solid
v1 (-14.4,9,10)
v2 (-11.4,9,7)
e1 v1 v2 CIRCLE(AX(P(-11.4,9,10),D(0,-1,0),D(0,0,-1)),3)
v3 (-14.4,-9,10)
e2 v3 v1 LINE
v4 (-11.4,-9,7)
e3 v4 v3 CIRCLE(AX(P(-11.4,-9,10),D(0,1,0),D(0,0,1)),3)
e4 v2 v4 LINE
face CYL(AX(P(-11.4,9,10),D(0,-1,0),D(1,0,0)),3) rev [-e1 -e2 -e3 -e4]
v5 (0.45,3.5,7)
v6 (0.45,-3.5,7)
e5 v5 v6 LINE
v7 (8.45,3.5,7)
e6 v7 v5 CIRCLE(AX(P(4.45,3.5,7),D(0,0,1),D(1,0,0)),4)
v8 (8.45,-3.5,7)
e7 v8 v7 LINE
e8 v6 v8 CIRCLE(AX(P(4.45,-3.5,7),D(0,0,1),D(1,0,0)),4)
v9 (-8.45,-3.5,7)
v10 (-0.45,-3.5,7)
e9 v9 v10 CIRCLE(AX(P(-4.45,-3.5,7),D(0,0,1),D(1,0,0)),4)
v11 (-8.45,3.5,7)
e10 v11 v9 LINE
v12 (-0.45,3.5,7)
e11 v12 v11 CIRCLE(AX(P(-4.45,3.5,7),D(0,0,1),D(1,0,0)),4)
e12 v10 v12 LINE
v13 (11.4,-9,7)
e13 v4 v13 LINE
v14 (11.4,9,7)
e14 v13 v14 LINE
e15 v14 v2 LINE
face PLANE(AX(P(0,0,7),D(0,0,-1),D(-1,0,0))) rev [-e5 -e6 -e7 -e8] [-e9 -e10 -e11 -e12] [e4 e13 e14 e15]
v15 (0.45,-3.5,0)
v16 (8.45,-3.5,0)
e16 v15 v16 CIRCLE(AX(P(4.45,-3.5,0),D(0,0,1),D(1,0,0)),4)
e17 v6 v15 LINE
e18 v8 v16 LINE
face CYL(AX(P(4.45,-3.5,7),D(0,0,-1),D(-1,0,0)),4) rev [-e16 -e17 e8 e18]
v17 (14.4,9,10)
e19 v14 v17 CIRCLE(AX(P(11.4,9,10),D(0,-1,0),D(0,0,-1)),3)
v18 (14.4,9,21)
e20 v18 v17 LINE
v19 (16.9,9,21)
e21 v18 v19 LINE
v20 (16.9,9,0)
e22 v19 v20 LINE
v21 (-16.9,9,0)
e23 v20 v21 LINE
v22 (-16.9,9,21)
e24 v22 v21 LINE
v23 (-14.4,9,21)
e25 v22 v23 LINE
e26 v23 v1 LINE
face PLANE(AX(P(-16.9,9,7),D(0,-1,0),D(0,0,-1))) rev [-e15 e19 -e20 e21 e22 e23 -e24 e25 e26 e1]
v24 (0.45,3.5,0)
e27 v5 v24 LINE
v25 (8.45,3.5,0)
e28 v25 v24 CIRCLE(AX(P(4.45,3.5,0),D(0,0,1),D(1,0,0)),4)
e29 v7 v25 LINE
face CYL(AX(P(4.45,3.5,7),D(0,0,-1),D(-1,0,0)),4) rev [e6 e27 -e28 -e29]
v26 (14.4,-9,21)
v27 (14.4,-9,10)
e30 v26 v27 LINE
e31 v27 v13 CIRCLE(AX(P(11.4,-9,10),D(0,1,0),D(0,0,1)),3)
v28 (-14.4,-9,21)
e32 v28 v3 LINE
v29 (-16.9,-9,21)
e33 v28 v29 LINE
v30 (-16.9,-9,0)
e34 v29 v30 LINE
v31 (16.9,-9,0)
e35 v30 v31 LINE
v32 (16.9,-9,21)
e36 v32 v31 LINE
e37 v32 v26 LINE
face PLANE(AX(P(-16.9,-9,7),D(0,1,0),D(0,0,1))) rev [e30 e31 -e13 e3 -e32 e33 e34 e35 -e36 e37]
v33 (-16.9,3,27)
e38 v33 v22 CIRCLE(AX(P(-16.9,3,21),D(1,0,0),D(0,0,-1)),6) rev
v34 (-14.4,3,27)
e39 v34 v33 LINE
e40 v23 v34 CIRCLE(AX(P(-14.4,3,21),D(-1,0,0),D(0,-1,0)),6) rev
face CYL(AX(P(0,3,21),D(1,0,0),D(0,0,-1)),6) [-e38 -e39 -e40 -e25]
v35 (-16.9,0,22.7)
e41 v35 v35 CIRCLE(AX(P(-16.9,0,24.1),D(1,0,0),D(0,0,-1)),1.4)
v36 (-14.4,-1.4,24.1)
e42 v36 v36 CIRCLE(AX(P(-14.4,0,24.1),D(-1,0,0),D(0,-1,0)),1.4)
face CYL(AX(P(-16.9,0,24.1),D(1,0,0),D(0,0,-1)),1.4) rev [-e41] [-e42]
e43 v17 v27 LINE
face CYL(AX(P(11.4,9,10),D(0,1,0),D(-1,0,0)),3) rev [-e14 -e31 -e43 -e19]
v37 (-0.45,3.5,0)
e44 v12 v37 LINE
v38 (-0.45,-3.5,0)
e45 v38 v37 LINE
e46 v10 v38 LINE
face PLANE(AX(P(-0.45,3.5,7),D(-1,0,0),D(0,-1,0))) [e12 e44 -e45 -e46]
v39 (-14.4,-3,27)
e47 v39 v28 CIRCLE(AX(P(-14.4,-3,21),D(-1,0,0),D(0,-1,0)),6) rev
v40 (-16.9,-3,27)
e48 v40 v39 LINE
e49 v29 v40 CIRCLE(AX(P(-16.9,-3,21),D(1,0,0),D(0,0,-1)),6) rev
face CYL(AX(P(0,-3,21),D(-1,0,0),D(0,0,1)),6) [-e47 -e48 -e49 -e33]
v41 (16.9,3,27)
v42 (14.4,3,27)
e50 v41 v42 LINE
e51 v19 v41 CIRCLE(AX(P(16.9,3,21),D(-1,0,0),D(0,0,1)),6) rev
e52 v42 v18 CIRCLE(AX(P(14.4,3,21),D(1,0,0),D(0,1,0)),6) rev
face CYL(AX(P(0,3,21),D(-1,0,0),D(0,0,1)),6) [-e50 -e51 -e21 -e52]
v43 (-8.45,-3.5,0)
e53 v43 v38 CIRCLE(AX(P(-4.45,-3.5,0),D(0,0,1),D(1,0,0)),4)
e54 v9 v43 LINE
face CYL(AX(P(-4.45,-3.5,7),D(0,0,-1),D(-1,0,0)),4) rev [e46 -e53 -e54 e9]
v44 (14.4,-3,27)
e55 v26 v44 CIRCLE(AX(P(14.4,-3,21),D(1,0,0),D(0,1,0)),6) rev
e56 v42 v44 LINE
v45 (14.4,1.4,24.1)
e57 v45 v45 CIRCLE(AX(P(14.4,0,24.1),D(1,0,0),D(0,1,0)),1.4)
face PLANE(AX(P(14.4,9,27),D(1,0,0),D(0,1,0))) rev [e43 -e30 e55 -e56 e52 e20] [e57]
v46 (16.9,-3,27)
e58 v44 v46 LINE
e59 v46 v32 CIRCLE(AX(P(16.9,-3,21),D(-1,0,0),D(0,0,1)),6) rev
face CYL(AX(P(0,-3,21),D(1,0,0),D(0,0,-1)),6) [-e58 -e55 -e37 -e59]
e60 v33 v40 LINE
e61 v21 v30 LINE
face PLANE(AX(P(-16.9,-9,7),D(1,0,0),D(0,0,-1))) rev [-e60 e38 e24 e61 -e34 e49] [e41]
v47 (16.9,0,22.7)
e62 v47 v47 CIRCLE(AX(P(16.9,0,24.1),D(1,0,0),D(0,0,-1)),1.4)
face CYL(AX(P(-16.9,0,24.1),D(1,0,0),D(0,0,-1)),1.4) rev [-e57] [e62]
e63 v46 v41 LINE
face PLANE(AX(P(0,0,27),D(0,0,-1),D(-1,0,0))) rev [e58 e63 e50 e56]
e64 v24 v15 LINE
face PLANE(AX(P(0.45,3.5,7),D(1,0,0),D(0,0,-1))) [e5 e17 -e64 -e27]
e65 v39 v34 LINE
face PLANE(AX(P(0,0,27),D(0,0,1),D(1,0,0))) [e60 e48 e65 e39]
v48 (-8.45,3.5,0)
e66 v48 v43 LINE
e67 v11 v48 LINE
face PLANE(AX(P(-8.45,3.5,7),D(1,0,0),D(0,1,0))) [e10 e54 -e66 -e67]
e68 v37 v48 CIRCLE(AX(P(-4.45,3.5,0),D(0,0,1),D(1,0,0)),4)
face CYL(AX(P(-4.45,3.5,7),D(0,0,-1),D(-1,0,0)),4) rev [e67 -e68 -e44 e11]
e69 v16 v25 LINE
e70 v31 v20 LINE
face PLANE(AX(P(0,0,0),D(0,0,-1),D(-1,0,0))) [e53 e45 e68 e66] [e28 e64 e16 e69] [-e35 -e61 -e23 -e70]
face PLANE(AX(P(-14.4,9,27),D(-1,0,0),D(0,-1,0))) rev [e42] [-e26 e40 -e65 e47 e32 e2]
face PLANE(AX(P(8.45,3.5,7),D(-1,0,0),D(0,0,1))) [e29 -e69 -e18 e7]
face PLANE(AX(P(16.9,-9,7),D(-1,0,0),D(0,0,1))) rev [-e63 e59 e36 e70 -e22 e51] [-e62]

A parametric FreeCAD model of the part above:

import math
import FreeCAD as App
import Part
import Sketcher
Q = App.Units.Quantity


def edges_at(feature, points):
    """Names of the edges that pass closest to the given points."""
    edges = feature.Shape.Edges
    near = lambda p: min(range(len(edges)), key=lambda i: edges[i].distToShape(Part.Vertex(*p))[0])
    return sorted({f"Edge{near(p) + 1}" for p in points})


def add_polygon(sketch, points):
    """Adds a closed chain of lines whose ends are joined by coincident constraints."""
    first, n = sketch.GeometryCount, len(points)
    for a, b in zip(points, points[1:] + points[:1]):
        sketch.addGeometry(Part.LineSegment(App.Vector(*a, 0), App.Vector(*b, 0)), False)
    for i in range(n):
        sketch.addConstraint(Sketcher.Constraint("Coincident", first + i, 2, first + (i + 1) % n, 1))

doc = App.newDocument("Part")
body = doc.addObject("PartDesign::Body", "Body")

# Sketch on XY plane
sketch1 = doc.addObject("Sketcher::SketchObject", "Sketch")
body.addObject(sketch1)
sketch1.AttachmentSupport = (doc.XY_Plane, [""])
sketch1.MapMode = "FlatFace"
add_polygon(sketch1, [(-16.9, 9), (-16.9, -9), (16.9, -9), (16.9, 9)])  # lines 0-3
sketch1.addGeometry(Part.ArcOfCircle(Part.Circle(App.Vector(4.5, 3.5, 0), App.Vector(0, 0, 1), 4), math.radians(0), math.radians(180)), False)  # 4
sketch1.addGeometry(Part.LineSegment(App.Vector(8.4, 3.5, 0), App.Vector(8.4, -3.5, 0)), False)  # 5
sketch1.addGeometry(Part.ArcOfCircle(Part.Circle(App.Vector(4.5, -3.5, 0), App.Vector(0, 0, 1), 4), math.radians(180), math.radians(360)), False)  # 6
sketch1.addGeometry(Part.LineSegment(App.Vector(0.5, -3.5, 0), App.Vector(0.5, 3.5, 0)), False)  # 7
sketch1.addGeometry(Part.ArcOfCircle(Part.Circle(App.Vector(-4.5, 3.5, 0), App.Vector(0, 0, 1), 4), math.radians(0), math.radians(180)), False)  # 8
sketch1.addGeometry(Part.LineSegment(App.Vector(-0.5, 3.5, 0), App.Vector(-0.5, -3.5, 0)), False)  # 9
sketch1.addGeometry(Part.ArcOfCircle(Part.Circle(App.Vector(-4.5, -3.5, 0), App.Vector(0, 0, 1), 4), math.radians(180), math.radians(360)), False)  # 10
sketch1.addGeometry(Part.LineSegment(App.Vector(-8.4, -3.5, 0), App.Vector(-8.4, 3.5, 0)), False)  # 11
sketch1.addConstraint([
    Sketcher.Constraint("Tangent", 4, 1, 5, 1),
    Sketcher.Constraint("Tangent", 5, 2, 6, 2),
    Sketcher.Constraint("Tangent", 6, 1, 7, 1),
    Sketcher.Constraint("Tangent", 7, 2, 4, 2),
    Sketcher.Constraint("Tangent", 8, 1, 9, 1),
    Sketcher.Constraint("Tangent", 9, 2, 10, 2),
    Sketcher.Constraint("Tangent", 10, 1, 11, 1),
    Sketcher.Constraint("Tangent", 11, 2, 8, 2),
    Sketcher.Constraint("Vertical", 0),
    Sketcher.Constraint("Horizontal", 1),
    Sketcher.Constraint("Vertical", 2),
    Sketcher.Constraint("Horizontal", 3),
    Sketcher.Constraint("Vertical", 5),
    Sketcher.Constraint("Vertical", 7),
    Sketcher.Constraint("Vertical", 9),
    Sketcher.Constraint("Vertical", 11),
    Sketcher.Constraint("Equal", 6, 8),
    Sketcher.Constraint("Symmetric", 6, 3, 8, 3, -1, 1),
    Sketcher.Constraint("Symmetric", 0, 2, 2, 2, -1, 1),
    Sketcher.Constraint("Horizontal", 4, 3, 8, 3),
    Sketcher.Constraint("Horizontal", 6, 3, 10, 3),
    Sketcher.Constraint("Radius", 4, Q("4 mm")),
    Sketcher.Constraint("DistanceY", 0, 2, 0, 1, Q("18 mm")),
    Sketcher.Constraint("DistanceY", 5, 2, 5, 1, Q("7 mm")),
    Sketcher.Constraint("DistanceX", 1, 1, 1, 2, Q("33.8 mm")),
    Sketcher.Constraint("DistanceX", 8, 3, 4, 3, Q("8.9 mm")),
])
pad1 = doc.addObject("PartDesign::Pad", "Pad")
body.addObject(pad1)
pad1.Profile = sketch1
pad1.Length = 7

# Sketch on XY plane
sketch2 = doc.addObject("Sketcher::SketchObject", "Sketch001")
body.addObject(sketch2)
sketch2.AttachmentSupport = (doc.XY_Plane, [""])
sketch2.MapMode = "FlatFace"
sketch2.AttachmentOffset = App.Placement(App.Vector(0, 0, 7), App.Rotation())
add_polygon(sketch2, [(-16.9, 9), (-16.9, -9), (-14.4, -9), (-14.4, 9)])  # lines 0-3
add_polygon(sketch2, [(14.4, 9), (14.4, -9), (16.9, -9), (16.9, 9)])  # lines 4-7
sketch2.addConstraint([
    Sketcher.Constraint("Vertical", 0),
    Sketcher.Constraint("Horizontal", 1),
    Sketcher.Constraint("Vertical", 2),
    Sketcher.Constraint("Horizontal", 3),
    Sketcher.Constraint("Vertical", 4),
    Sketcher.Constraint("Horizontal", 5),
    Sketcher.Constraint("Vertical", 6),
    Sketcher.Constraint("Horizontal", 7),
    Sketcher.Constraint("Symmetric", 2, 2, 4, 2, -1, 1),
    Sketcher.Constraint("Symmetric", 0, 2, 6, 2, -1, 1),
    Sketcher.Constraint("Horizontal", 1, 2, 4, 2),
    Sketcher.Constraint("DistanceY", 0, 2, 0, 1, Q("18 mm")),
    Sketcher.Constraint("DistanceX", 1, 1, 1, 2, Q("2.5 mm")),
    Sketcher.Constraint("DistanceX", 0, 2, -1, 1, Q("16.9 mm")),
])
pad2 = doc.addObject("PartDesign::Pad", "Pad001")
body.addObject(pad2)
pad2.Profile = sketch2
pad2.Length = 20

# Sketch on YZ plane
sketch3 = doc.addObject("Sketcher::SketchObject", "Sketch002")
body.addObject(sketch3)
sketch3.AttachmentSupport = (doc.YZ_Plane, [""])
sketch3.MapMode = "FlatFace"
sketch3.AttachmentOffset = App.Placement(App.Vector(0, 0, 16.9), App.Rotation())
sketch3.addGeometry(Part.Circle(App.Vector(0, 24.1, 0), App.Vector(0, 0, 1), 1.4), False)
sketch3.addConstraint([
    Sketcher.Constraint("PointOnObject", 0, 3, -2),
    Sketcher.Constraint("Diameter", 0, Q("2.8 mm")),
    Sketcher.Constraint("DistanceY", -1, 1, 0, 3, Q("24.1 mm")),
])
pocket1 = doc.addObject("PartDesign::Pocket", "Pocket")
body.addObject(pocket1)
pocket1.Profile = sketch3
pocket1.Type = "ThroughAll"
doc.recompute()

fillet = doc.addObject("PartDesign::Fillet", "Fillet")
body.addObject(fillet)
fillet.Base = (pocket1, edges_at(pocket1, [
    (15.65, -9, 27),
    (-15.65, -9, 27),
    (-15.65, 9, 27),
    (15.65, 9, 27),
]))
fillet.Radius = 6
doc.recompute()

fillet2 = doc.addObject("PartDesign::Fillet", "Fillet001")
body.addObject(fillet2)
fillet2.Base = (fillet, edges_at(fillet, [(14.4, 0, 7), (-14.4, 0, 7)]))
fillet2.Radius = 3

doc.recompute()
